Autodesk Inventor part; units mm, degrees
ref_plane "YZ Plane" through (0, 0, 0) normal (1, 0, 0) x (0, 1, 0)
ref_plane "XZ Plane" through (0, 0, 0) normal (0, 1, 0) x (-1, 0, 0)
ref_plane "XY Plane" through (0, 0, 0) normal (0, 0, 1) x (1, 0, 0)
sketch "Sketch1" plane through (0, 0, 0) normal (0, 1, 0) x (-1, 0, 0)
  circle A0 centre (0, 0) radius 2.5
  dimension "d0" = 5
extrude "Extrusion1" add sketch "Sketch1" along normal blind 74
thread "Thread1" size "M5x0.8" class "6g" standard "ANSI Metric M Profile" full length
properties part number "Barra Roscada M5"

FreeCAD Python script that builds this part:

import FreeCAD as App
import Part
import Sketcher

doc = App.newDocument("Part")
body = doc.addObject("PartDesign::Body", "Body")

sketch1 = doc.addObject("Sketcher::SketchObject", "Sketch")
body.addObject(sketch1)
sketch1.AttachmentSupport = (doc.XZ_Plane, [""])
sketch1.MapMode = "FlatFace"
sketch1.addGeometry(Part.Circle(App.Vector(0, 0, 0), App.Vector(0, 0, 1), 2.5), False)
sketch1.addConstraint([
    Sketcher.Constraint("Coincident", 0, 3, -1, 1),
    Sketcher.Constraint("Diameter", 0, 5.0),
])
pad1 = doc.addObject("PartDesign::Pad", "Pad")
body.addObject(pad1)
pad1.Profile = sketch1
pad1.Length = 74
pad1.Reversed = True

doc.recompute()
